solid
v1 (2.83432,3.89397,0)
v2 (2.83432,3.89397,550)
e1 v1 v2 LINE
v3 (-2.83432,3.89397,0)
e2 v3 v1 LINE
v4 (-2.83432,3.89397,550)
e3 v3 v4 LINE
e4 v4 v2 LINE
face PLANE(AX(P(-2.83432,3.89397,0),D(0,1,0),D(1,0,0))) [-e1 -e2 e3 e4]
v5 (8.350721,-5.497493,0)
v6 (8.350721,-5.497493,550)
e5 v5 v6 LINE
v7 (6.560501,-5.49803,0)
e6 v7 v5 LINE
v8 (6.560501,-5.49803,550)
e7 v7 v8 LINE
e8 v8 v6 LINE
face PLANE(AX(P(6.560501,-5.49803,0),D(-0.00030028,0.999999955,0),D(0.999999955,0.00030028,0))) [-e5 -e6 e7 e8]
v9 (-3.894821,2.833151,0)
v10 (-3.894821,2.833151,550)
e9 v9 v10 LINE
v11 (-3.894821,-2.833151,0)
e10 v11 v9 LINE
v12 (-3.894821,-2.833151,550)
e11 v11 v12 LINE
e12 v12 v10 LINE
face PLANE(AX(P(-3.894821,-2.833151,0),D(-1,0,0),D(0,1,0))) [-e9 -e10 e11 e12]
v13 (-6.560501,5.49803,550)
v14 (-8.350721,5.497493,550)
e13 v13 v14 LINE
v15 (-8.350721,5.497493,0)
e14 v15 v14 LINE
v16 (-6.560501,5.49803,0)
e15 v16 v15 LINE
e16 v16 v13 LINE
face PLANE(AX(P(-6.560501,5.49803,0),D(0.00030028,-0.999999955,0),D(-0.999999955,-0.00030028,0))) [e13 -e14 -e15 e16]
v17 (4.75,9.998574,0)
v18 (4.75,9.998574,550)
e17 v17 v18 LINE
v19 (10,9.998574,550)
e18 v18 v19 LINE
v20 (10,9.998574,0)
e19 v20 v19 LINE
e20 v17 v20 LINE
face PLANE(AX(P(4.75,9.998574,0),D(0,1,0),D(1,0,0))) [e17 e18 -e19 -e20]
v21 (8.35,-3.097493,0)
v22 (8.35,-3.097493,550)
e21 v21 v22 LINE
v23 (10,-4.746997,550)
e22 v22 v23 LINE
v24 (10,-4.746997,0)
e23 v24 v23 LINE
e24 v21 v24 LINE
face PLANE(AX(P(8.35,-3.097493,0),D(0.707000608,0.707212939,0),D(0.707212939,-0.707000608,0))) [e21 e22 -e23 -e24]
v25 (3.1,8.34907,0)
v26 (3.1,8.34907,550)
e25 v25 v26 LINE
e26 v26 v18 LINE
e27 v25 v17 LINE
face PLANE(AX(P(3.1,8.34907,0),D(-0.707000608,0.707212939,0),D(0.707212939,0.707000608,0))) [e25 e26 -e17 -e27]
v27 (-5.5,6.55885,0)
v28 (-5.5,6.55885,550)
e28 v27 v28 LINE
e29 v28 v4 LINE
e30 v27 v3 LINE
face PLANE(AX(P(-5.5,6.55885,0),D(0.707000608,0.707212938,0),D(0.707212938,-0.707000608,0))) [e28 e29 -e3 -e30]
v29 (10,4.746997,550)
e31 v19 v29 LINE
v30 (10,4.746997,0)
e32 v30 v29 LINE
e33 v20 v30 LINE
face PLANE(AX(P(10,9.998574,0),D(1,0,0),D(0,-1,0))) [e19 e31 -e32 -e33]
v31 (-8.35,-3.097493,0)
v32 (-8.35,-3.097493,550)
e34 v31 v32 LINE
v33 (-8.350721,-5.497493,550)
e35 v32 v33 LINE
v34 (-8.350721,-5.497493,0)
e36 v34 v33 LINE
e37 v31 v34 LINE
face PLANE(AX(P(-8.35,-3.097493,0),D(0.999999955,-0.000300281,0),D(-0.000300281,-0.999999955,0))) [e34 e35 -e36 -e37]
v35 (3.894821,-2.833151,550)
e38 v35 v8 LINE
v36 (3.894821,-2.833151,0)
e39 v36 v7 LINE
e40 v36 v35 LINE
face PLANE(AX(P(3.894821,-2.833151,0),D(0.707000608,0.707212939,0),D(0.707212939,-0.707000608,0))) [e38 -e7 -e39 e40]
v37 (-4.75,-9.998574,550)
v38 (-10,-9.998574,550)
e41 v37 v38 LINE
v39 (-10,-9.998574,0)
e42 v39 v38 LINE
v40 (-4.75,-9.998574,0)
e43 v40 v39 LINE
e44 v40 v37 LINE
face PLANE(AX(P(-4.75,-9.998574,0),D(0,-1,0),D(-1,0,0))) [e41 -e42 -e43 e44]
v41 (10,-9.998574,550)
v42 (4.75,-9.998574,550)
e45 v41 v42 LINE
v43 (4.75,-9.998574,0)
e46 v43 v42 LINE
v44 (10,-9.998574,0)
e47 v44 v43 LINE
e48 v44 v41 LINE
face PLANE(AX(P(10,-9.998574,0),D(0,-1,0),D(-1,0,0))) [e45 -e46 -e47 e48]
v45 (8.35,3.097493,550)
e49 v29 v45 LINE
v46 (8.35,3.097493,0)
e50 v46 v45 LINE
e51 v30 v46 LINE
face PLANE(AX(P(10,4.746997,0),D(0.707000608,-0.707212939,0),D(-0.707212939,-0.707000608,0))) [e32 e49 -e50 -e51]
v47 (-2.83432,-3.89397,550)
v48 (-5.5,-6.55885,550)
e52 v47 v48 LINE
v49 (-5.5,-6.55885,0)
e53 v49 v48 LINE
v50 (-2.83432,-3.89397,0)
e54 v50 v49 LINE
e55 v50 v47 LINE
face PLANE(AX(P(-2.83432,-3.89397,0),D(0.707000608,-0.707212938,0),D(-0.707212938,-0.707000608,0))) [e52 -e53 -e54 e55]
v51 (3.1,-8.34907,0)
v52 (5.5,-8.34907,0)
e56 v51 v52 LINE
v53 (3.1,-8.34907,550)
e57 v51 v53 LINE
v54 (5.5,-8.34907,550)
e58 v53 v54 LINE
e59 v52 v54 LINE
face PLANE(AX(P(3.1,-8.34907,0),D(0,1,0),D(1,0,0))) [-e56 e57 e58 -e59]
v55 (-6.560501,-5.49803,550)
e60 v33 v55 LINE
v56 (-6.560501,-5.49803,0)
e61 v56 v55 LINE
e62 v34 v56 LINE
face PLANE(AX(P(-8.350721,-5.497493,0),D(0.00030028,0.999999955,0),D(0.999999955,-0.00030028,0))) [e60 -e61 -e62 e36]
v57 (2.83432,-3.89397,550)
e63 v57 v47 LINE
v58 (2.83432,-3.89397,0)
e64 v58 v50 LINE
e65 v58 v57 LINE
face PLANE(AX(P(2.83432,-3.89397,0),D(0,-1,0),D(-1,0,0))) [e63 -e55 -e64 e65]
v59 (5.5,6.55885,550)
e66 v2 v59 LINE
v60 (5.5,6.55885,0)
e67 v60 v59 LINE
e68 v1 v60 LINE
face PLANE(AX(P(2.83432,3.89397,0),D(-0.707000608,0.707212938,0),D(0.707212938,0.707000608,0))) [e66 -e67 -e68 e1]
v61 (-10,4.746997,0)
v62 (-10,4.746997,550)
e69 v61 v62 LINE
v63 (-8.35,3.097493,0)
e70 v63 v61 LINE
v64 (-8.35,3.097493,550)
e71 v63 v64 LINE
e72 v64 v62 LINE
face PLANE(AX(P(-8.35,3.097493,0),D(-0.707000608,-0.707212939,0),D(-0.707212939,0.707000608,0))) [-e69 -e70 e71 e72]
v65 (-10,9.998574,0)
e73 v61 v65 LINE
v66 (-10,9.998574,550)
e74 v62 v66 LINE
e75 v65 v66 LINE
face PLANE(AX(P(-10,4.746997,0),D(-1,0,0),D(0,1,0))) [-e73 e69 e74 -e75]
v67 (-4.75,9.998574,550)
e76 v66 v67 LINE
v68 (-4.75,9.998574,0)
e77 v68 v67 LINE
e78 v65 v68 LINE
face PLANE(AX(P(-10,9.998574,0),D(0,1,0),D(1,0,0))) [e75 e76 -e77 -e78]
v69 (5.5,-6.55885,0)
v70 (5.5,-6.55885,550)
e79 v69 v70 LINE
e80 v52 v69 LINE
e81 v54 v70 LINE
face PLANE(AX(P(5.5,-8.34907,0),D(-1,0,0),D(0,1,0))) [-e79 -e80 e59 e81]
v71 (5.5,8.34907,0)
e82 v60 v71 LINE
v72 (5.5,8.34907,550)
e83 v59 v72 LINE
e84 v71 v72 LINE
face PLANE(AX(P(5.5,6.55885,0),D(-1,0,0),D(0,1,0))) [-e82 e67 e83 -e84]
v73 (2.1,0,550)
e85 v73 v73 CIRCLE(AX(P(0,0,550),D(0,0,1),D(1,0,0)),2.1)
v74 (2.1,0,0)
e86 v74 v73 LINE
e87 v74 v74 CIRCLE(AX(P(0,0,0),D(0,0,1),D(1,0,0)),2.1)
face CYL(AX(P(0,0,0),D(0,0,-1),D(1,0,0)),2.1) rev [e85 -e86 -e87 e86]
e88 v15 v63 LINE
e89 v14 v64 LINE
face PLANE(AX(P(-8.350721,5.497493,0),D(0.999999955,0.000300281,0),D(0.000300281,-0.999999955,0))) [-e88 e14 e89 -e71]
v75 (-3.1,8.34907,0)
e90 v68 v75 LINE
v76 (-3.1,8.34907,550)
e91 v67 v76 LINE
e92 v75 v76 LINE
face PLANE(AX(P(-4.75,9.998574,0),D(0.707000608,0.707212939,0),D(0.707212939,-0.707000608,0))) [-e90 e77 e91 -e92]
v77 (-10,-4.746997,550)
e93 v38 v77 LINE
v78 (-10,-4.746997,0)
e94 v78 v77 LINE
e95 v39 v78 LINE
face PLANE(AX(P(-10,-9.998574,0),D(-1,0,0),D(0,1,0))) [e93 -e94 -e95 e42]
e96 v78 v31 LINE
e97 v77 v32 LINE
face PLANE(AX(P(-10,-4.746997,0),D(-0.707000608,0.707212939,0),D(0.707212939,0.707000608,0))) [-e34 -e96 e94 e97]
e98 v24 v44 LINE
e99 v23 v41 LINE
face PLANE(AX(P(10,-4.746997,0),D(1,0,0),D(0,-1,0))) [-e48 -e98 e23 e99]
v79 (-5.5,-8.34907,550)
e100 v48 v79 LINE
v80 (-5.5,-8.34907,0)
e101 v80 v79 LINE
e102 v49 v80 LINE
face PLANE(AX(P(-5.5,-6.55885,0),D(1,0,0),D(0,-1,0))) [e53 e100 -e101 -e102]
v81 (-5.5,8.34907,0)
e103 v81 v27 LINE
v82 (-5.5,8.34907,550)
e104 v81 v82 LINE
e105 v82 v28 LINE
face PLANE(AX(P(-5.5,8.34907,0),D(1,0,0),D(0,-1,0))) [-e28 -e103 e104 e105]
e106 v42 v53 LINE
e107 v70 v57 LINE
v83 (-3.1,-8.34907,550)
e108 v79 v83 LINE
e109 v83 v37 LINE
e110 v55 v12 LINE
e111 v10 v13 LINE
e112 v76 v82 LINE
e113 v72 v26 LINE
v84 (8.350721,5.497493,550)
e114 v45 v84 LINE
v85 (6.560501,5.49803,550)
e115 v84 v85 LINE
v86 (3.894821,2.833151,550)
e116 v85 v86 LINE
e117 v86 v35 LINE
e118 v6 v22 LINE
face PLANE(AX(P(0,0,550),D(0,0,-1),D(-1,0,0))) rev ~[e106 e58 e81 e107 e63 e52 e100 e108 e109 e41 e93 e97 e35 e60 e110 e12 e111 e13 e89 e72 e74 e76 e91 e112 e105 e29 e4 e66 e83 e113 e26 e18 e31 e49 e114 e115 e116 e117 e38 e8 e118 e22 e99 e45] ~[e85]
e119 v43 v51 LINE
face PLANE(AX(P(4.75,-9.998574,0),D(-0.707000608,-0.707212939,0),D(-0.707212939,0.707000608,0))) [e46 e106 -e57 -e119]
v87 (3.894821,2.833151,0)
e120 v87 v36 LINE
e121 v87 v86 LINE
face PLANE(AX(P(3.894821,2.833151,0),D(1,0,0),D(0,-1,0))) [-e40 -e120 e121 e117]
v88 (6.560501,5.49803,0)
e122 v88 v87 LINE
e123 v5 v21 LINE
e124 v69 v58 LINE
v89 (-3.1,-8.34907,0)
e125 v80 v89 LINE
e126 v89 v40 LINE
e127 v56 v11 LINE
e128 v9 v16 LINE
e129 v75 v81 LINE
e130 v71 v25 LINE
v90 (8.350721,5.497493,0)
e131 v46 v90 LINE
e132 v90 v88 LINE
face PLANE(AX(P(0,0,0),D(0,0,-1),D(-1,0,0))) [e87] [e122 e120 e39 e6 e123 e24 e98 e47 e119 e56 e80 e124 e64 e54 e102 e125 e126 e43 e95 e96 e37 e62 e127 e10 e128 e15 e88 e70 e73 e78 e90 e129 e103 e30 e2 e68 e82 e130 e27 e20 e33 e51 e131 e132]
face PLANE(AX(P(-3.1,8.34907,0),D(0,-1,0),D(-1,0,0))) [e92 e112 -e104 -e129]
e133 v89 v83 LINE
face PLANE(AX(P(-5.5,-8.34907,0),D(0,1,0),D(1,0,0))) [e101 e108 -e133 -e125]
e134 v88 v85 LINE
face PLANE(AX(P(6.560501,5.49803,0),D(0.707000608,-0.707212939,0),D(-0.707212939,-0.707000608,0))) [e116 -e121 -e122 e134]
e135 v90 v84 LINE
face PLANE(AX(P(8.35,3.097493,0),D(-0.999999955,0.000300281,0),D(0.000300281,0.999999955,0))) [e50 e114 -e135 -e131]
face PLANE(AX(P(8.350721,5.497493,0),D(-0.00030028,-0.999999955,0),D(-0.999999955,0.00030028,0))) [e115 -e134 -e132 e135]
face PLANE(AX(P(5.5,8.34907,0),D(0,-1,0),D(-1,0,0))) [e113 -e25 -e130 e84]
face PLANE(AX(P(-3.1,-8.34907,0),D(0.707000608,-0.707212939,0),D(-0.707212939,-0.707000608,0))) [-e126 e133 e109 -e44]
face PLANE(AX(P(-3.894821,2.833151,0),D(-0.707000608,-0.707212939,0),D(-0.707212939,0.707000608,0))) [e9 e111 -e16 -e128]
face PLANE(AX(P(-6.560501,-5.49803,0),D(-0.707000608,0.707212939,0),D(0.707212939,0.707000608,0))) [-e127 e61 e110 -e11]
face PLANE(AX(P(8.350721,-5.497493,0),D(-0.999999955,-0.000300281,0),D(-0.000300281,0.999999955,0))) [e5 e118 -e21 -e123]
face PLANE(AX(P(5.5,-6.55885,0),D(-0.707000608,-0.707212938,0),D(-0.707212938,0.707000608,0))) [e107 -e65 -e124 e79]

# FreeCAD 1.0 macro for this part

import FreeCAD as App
import Part
import Sketcher
Q = App.Units.Quantity


def add_polygon(sketch, points):
    """Adds a closed chain of lines whose ends are joined by coincident constraints."""
    first, n = sketch.GeometryCount, len(points)
    for a, b in zip(points, points[1:] + points[:1]):
        sketch.addGeometry(Part.LineSegment(App.Vector(*a, 0), App.Vector(*b, 0)), False)
    for i in range(n):
        sketch.addConstraint(Sketcher.Constraint("Coincident", first + i, 2, first + (i + 1) % n, 1))

doc = App.newDocument("Part")
body = doc.addObject("PartDesign::Body", "Body")

# Sketch on XY plane
sketch1 = body.newObject("Sketcher::SketchObject", "Sketch")
sketch1.AttachmentSupport = (doc.getObject("XY_Plane"), [""])
sketch1.MapMode = "FlatFace"
add_polygon(sketch1, [(5.5, 6.6), (2.8, 3.9), (-2.8, 3.9), (-5.5, 6.6), (-5.5, 8.3), (-3.1, 8.3), (-4.8, 10), (-10, 10), (-10, 4.7), (-8.3, 3.1), (-8.4, 5.5), (-6.6, 5.5), (-3.9, 2.8), (-3.9, -2.8), (-6.6, -5.5), (-8.4, -5.5), (-8.3, -3.1), (-10, -4.7), (-10, -10), (-4.8, -10), (-3.1, -8.3), (-5.5, -8.3), (-5.5, -6.6), (-2.8, -3.9), (2.8, -3.9), (5.5, -6.6), (5.5, -8.3), (3.1, -8.3), (4.8, -10), (10, -10), (10, -4.7), (8.3, -3.1), (8.4, -5.5), (6.6, -5.5), (3.9, -2.8), (3.9, 2.8), (6.6, 5.5), (8.4, 5.5), (8.3, 3.1), (10, 4.7), (10, 10), (4.8, 10), (3.1, 8.3), (5.5, 8.3)])  # lines 0-43
sketch1.addGeometry(Part.Circle(App.Vector(0, 0, 0), App.Vector(0, 0, 1), 2.1), False)  # 44
sketch1.addConstraint(Sketcher.Constraint("Horizontal", 1))
sketch1.addConstraint(Sketcher.Constraint("Vertical", 3))
sketch1.addConstraint(Sketcher.Constraint("Horizontal", 4))
sketch1.addConstraint(Sketcher.Constraint("Horizontal", 6))
sketch1.addConstraint(Sketcher.Constraint("Vertical", 7))
sketch1.addConstraint(Sketcher.Constraint("Vertical", 12))
sketch1.addConstraint(Sketcher.Constraint("Vertical", 17))
sketch1.addConstraint(Sketcher.Constraint("Horizontal", 18))
sketch1.addConstraint(Sketcher.Constraint("Horizontal", 20))
sketch1.addConstraint(Sketcher.Constraint("Vertical", 21))
sketch1.addConstraint(Sketcher.Constraint("Horizontal", 23))
sketch1.addConstraint(Sketcher.Constraint("Vertical", 25))
sketch1.addConstraint(Sketcher.Constraint("Horizontal", 26))
sketch1.addConstraint(Sketcher.Constraint("Horizontal", 28))
sketch1.addConstraint(Sketcher.Constraint("Vertical", 29))
sketch1.addConstraint(Sketcher.Constraint("Vertical", 34))
sketch1.addConstraint(Sketcher.Constraint("Vertical", 39))
sketch1.addConstraint(Sketcher.Constraint("Horizontal", 40))
sketch1.addConstraint(Sketcher.Constraint("Horizontal", 42))
sketch1.addConstraint(Sketcher.Constraint("Vertical", 43))
sketch1.addConstraint(Sketcher.Constraint("Coincident", 44, 3, -1, 1))
sketch1.addConstraint(Sketcher.Constraint("Symmetric", 0, 2, 22, 2, -1, 1))
sketch1.addConstraint(Sketcher.Constraint("Symmetric", 2, 2, 24, 2, -1, 1))
sketch1.addConstraint(Sketcher.Constraint("Symmetric", 4, 2, 26, 2, -1, 1))
sketch1.addConstraint(Sketcher.Constraint("Symmetric", 5, 2, 27, 2, -1, 1))
sketch1.addConstraint(Sketcher.Constraint("Symmetric", 7, 2, 29, 2, -1, 1))
sketch1.addConstraint(Sketcher.Constraint("Symmetric", 8, 2, 30, 2, -1, 1))
sketch1.addConstraint(Sketcher.Constraint("Symmetric", 9, 2, 31, 2, -1, 1))
sketch1.addConstraint(Sketcher.Constraint("Symmetric", 10, 2, 32, 2, -1, 1))
sketch1.addConstraint(Sketcher.Constraint("Symmetric", 11, 2, 33, 2, -1, 1))
sketch1.addConstraint(Sketcher.Constraint("Symmetric", 13, 2, 35, 2, -1, 1))
sketch1.addConstraint(Sketcher.Constraint("Symmetric", 14, 2, 36, 2, -1, 1))
sketch1.addConstraint(Sketcher.Constraint("Symmetric", 15, 2, 37, 2, -1, 1))
sketch1.addConstraint(Sketcher.Constraint("Symmetric", 16, 2, 38, 2, -1, 1))
sketch1.addConstraint(Sketcher.Constraint("Symmetric", 18, 2, 40, 2, -1, 1))
sketch1.addConstraint(Sketcher.Constraint("Symmetric", 19, 2, 41, 2, -1, 1))
sketch1.addConstraint(Sketcher.Constraint("Symmetric", 21, 2, 43, 2, -1, 1))
sketch1.addConstraint(Sketcher.Constraint("Symmetric", 21, 2, 24, 2, -2))
sketch1.addConstraint(Sketcher.Constraint("Symmetric", 19, 2, 26, 2, -2))
sketch1.addConstraint(Sketcher.Constraint("Symmetric", 18, 2, 27, 2, -2))
sketch1.addConstraint(Sketcher.Constraint("Symmetric", 16, 2, 29, 2, -2))
sketch1.addConstraint(Sketcher.Constraint("Symmetric", 15, 2, 30, 2, -2))
sketch1.addConstraint(Sketcher.Constraint("Symmetric", 14, 2, 31, 2, -2))
sketch1.addConstraint(Sketcher.Constraint("Symmetric", 13, 2, 32, 2, -2))
sketch1.addConstraint(Sketcher.Constraint("Parallel", 2, 5))
sketch1.addConstraint(Sketcher.Constraint("Parallel", 5, 8))
sketch1.addConstraint(Sketcher.Constraint("Perpendicular", 9, 10))
sketch1.addConstraint(Sketcher.Constraint("Parallel", 8, 11))
sketch1.addConstraint(Sketcher.Constraint("Parallel", 0, 13))
sketch1.addConstraint(Sketcher.Constraint("Parallel", 13, 16))
sketch1.addConstraint(Sketcher.Constraint("Parallel", 11, 24))
sketch1.addConstraint(Sketcher.Constraint("Parallel", 22, 35))
sketch1.addConstraint(Sketcher.Constraint("Equal", 5, 8))
sketch1.addConstraint(Sketcher.Constraint("Equal", 2, 11))
sketch1.addConstraint(Sketcher.Constraint("Diameter", 44, Q("4.2 mm")))
sketch1.addConstraint(Sketcher.Constraint("DistanceX", 4, 1, 4, 2, Q("2.4 mm")))
sketch1.addConstraint(Sketcher.Constraint("DistanceX", 6, 2, -1, 1, Q("10 mm")))
sketch1.addConstraint(Sketcher.Constraint("Distance", 9, Q("2.4 mm")))
sketch1.addConstraint(Sketcher.Constraint("DistanceX", 6, 2, 6, 1, Q("5.25 mm")))
sketch1.addConstraint(Sketcher.Constraint("DistanceX", 2, 2, -1, 1, Q("5.5 mm")))
sketch1.addConstraint(Sketcher.Constraint("DistanceY", 12, 2, 12, 1, Q("5.666302 mm")))
sketch1.addConstraint(Sketcher.Constraint("DistanceY", 13, 2, 1, 2, Q("9.392001 mm")))
sketch1.addConstraint(Sketcher.Constraint("DistanceX", 1, 2, 1, 1, Q("5.668641 mm")))
sketch1.addConstraint(Sketcher.Constraint("DistanceY", 3, 1, 3, 2, Q("1.79022 mm")))
sketch1.addConstraint(Sketcher.Constraint("DistanceX", 10, 2, -1, 1, Q("6.560501 mm")))
sketch1.addConstraint(Sketcher.Constraint("DistanceY", 1, 2, 3, 2, Q("4.455099 mm")))
sketch1.addConstraint(Sketcher.Constraint("DistanceX", 14, 2, 12, 2, Q("4.455899 mm")))
pad1 = body.newObject("PartDesign::Pad", "Pad")
pad1.Profile = sketch1
pad1.Length = 550

doc.recompute()
